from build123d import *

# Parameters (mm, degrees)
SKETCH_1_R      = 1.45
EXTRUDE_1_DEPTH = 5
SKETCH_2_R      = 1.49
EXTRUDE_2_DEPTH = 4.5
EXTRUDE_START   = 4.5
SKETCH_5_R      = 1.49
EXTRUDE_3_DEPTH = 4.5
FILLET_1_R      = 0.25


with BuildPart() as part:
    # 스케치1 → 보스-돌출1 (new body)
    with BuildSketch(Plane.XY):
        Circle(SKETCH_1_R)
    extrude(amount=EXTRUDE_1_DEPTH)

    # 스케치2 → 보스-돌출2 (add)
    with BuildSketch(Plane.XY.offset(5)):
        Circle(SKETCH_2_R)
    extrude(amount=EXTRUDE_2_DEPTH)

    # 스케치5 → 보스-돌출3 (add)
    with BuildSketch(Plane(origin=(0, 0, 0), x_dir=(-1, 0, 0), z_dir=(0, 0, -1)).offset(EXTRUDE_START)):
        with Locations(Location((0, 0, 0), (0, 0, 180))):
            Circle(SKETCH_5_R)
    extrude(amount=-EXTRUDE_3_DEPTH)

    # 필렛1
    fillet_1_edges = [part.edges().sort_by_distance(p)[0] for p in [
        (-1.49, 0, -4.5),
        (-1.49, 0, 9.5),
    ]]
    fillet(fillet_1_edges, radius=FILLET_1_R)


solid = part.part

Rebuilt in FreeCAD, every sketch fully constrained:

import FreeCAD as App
import Part
import Sketcher
from FreeCAD import Vector
Q = App.Units.Quantity


def edges_at(feature, points):
    """Names of the edges that pass closest to the given points."""
    edges = feature.Shape.Edges
    near = lambda p: min(range(len(edges)), key=lambda i: edges[i].distToShape(Part.Vertex(*p))[0])
    return sorted({f"Edge{near(p) + 1}" for p in points})

doc = App.newDocument("Part")
params = doc.addObject("Spreadsheet::Sheet", "Params")
for row, (alias, value) in enumerate([
    ("sketch1_diameter", "2.9 mm"),
    ("pad1_length", "5 mm"),
    ("sketch2_diameter", "2.98 mm"),
    ("pad2_length", "4.5 mm"),
    ("sketch3_diameter", "2.98 mm"),
    ("pad3_length", "4.5 mm"),
    ("fillet_radius", "0.25 mm"),
], start=1):
    params.set(f"A{row}", alias)
    params.set(f"B{row}", "=" + value)
    params.setAlias(f"B{row}", alias)

body = doc.addObject("PartDesign::Body", "Body")

# Sketch on XY plane
sketch1 = body.newObject("Sketcher::SketchObject", "Sketch")
sketch1.AttachmentSupport = (doc.getObject("XY_Plane"), [""])
sketch1.MapMode = "FlatFace"
sketch1.addGeometry(Part.Circle(Vector(0, 0, 0), Vector(0, 0, 1), 1.4), False)
sketch1.addConstraint(Sketcher.Constraint("Coincident", 0, 3, -1, 1))
sketch1.addConstraint(Sketcher.Constraint("Diameter", 0, Q("2.9 mm")))
sketch1.setExpression("Constraints[1]", "Params.sketch1_diameter")
pad1 = body.newObject("PartDesign::Pad", "Pad")
pad1.Profile = sketch1
pad1.setExpression("Length", "Params.pad1_length")

# Sketch on XY plane
sketch2 = body.newObject("Sketcher::SketchObject", "Sketch001")
sketch2.AttachmentSupport = (doc.getObject("XY_Plane"), [""])
sketch2.MapMode = "FlatFace"
sketch2.AttachmentOffset = App.Placement(Vector(0, 0, 5), App.Rotation())
sketch2.addGeometry(Part.Circle(Vector(0, 0, 0), Vector(0, 0, 1), 1.5), False)
sketch2.addConstraint(Sketcher.Constraint("Coincident", 0, 3, -1, 1))
sketch2.addConstraint(Sketcher.Constraint("Diameter", 0, Q("2.98 mm")))
sketch2.setExpression("Constraints[1]", "Params.sketch2_diameter")
pad2 = body.newObject("PartDesign::Pad", "Pad001")
pad2.Profile = sketch2
pad2.setExpression("Length", "Params.pad2_length")

# Sketch on XY plane
sketch3 = body.newObject("Sketcher::SketchObject", "Sketch002")
sketch3.AttachmentSupport = (doc.getObject("XY_Plane"), [""])
sketch3.MapMode = "FlatFace"
sketch3.AttachmentOffset = App.Placement(Vector(0, 0, -4.5), App.Rotation())
sketch3.addGeometry(Part.Circle(Vector(0, 0, 0), Vector(0, 0, 1), 1.5), False)
sketch3.addConstraint(Sketcher.Constraint("Coincident", 0, 3, -1, 1))
sketch3.addConstraint(Sketcher.Constraint("Diameter", 0, Q("2.98 mm")))
sketch3.setExpression("Constraints[1]", "Params.sketch3_diameter")
pad3 = body.newObject("PartDesign::Pad", "Pad002")
pad3.Profile = sketch3
pad3.setExpression("Length", "Params.pad3_length")
doc.recompute()

fillet = body.newObject("PartDesign::Fillet", "Fillet")
fillet.Base = (pad3, edges_at(pad3, [(-1.49, 0, -4.5), (-1.49, 0, 9.5)]))
fillet.setExpression("Radius", "Params.fillet_radius")

doc.recompute()
